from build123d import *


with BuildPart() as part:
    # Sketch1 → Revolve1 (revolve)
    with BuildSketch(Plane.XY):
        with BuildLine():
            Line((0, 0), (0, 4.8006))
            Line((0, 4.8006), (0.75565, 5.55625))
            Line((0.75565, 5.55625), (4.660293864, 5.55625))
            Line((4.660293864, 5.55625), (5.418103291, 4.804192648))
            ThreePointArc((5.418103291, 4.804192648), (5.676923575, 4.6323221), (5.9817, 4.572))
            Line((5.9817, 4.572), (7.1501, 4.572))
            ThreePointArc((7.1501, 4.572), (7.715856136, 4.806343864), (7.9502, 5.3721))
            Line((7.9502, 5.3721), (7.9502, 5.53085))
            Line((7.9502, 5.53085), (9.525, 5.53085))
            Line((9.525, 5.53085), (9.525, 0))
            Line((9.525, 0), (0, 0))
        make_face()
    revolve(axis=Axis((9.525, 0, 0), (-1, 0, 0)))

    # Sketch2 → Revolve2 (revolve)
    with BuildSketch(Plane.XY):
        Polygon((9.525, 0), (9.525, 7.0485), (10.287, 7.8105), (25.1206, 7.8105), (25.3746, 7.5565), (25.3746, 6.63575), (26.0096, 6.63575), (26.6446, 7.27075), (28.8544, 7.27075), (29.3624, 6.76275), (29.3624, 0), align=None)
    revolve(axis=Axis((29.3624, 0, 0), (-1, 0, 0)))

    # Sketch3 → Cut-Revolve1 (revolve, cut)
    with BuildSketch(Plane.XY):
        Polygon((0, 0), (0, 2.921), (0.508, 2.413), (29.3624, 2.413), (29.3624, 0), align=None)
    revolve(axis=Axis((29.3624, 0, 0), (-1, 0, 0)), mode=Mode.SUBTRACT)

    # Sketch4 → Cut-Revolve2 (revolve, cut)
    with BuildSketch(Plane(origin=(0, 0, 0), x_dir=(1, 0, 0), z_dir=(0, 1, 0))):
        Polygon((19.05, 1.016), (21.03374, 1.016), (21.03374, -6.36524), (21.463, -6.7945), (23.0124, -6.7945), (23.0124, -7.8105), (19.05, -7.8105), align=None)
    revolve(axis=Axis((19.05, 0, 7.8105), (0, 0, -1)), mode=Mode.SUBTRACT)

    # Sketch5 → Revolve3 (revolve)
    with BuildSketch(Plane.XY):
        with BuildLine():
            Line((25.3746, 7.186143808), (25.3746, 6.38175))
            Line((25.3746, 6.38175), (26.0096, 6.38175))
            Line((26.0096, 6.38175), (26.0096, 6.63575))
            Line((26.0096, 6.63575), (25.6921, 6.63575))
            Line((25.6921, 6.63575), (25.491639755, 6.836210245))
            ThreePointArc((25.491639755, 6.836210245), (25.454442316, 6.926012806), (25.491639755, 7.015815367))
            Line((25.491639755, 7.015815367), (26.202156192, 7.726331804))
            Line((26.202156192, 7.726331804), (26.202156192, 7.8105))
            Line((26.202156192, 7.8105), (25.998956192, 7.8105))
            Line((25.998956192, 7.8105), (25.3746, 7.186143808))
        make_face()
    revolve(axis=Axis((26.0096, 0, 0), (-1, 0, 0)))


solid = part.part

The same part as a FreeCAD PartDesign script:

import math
import FreeCAD as App
import Part
import Sketcher
Q = App.Units.Quantity

doc = App.newDocument("Part")
body = doc.addObject("PartDesign::Body", "Body")

# Sketch on XY plane
sketch1 = doc.addObject("Sketcher::SketchObject", "Sketch")
body.addObject(sketch1)
sketch1.AttachmentSupport = (doc.XY_Plane, [""])
sketch1.MapMode = "FlatFace"
sketch1.addGeometry([
    Part.LineSegment(App.Vector(0, 4.8, 0), App.Vector(0, 0, 0)),  # 0
    Part.LineSegment(App.Vector(0, 0, 0), App.Vector(9.53, 0, 0)),  # 1
    Part.LineSegment(App.Vector(9.53, 0, 0), App.Vector(9.53, 5.53, 0)),  # 2
    Part.LineSegment(App.Vector(9.53, 5.53, 0), App.Vector(7.95, 5.53, 0)),  # 3
    Part.LineSegment(App.Vector(7.95, 5.53, 0), App.Vector(7.95, 5.37, 0)),  # 4
    Part.ArcOfCircle(Part.Circle(App.Vector(7.15, 5.37, 0), App.Vector(0, 0, 1), 0.8), math.radians(-90), math.radians(0)),  # 5
    Part.LineSegment(App.Vector(7.15, 4.57, 0), App.Vector(5.98, 4.57, 0)),  # 6
    Part.ArcOfCircle(Part.Circle(App.Vector(5.98, 5.37, 0), App.Vector(0, 0, 1), 0.8), math.radians(-135), math.radians(-90)),  # 7
    Part.LineSegment(App.Vector(5.42, 4.8, 0), App.Vector(4.66, 5.56, 0)),  # 8
    Part.LineSegment(App.Vector(4.66, 5.56, 0), App.Vector(0.76, 5.56, 0)),  # 9
    Part.LineSegment(App.Vector(0.76, 5.56, 0), App.Vector(0, 4.8, 0)),  # 10
], False)
sketch1.addConstraint([
    Sketcher.Constraint("Coincident", 0, 2, 1, 1),
    Sketcher.Constraint("Coincident", 1, 2, 2, 1),
    Sketcher.Constraint("Coincident", 2, 2, 3, 1),
    Sketcher.Constraint("Coincident", 3, 2, 4, 1),
    Sketcher.Constraint("Tangent", 4, 2, 5, 2),
    Sketcher.Constraint("Tangent", 5, 1, 6, 1),
    Sketcher.Constraint("Tangent", 6, 2, 7, 2),
    Sketcher.Constraint("Tangent", 7, 1, 8, 1),
    Sketcher.Constraint("Coincident", 8, 2, 9, 1),
    Sketcher.Constraint("Coincident", 9, 2, 10, 1),
    Sketcher.Constraint("Coincident", 10, 2, 0, 1),
    Sketcher.Constraint("Vertical", 0),
    Sketcher.Constraint("Horizontal", 1),
    Sketcher.Constraint("Vertical", 2),
    Sketcher.Constraint("Horizontal", 3),
    Sketcher.Constraint("Vertical", 4),
    Sketcher.Constraint("Horizontal", 6),
    Sketcher.Constraint("Horizontal", 9),
    Sketcher.Constraint("Coincident", 0, 2, -1, 1),
    Sketcher.Constraint("Equal", 5, 7),
    Sketcher.Constraint("Angle", 10, Q("-135 deg")),
    Sketcher.Constraint("Radius", 5, Q("0.0315 in")),
    Sketcher.Constraint("DistanceX", 1, 1, 1, 2, Q("0.375 in")),
    Sketcher.Constraint("DistanceX", 3, 2, 3, 1, Q("0.062 in")),
    Sketcher.Constraint("DistanceX", 6, 2, 6, 1, Q("0.046 in")),
    Sketcher.Constraint("DistanceY", 0, 2, 0, 1, Q("0.189 in")),
    Sketcher.Constraint("DistanceY", -1, 1, 5, 1, Q("0.18 in")),
    Sketcher.Constraint("DistanceY", -1, 1, 8, 2, Q("0.21875 in")),
    Sketcher.Constraint("DistanceY", 2, 1, 2, 2, Q("5.53085 mm")),
    Sketcher.Constraint("DistanceX", 9, 2, 9, 1, Q("3.904644 mm")),
])
revolution = doc.addObject("PartDesign::Revolution", "Revolution")
body.addObject(revolution)
revolution.Profile = sketch1
revolution.ReferenceAxis = (sketch1, ["H_Axis"])
revolution.Angle = 360

# Sketch on XY plane
sketch2 = doc.addObject("Sketcher::SketchObject", "Sketch001")
body.addObject(sketch2)
sketch2.AttachmentSupport = (doc.XY_Plane, [""])
sketch2.MapMode = "FlatFace"
sketch2.addGeometry([
    Part.LineSegment(App.Vector(9.53, 7.05, 0), App.Vector(9.53, 0, 0)),  # 0
    Part.LineSegment(App.Vector(9.53, 0, 0), App.Vector(29.36, 0, 0)),  # 1
    Part.LineSegment(App.Vector(29.36, 0, 0), App.Vector(29.36, 6.76, 0)),  # 2
    Part.LineSegment(App.Vector(29.36, 6.76, 0), App.Vector(28.85, 7.27, 0)),  # 3
    Part.LineSegment(App.Vector(28.85, 7.27, 0), App.Vector(26.64, 7.27, 0)),  # 4
    Part.LineSegment(App.Vector(26.64, 7.27, 0), App.Vector(26.01, 6.64, 0)),  # 5
    Part.LineSegment(App.Vector(26.01, 6.64, 0), App.Vector(25.37, 6.64, 0)),  # 6
    Part.LineSegment(App.Vector(25.37, 6.64, 0), App.Vector(25.37, 7.56, 0)),  # 7
    Part.LineSegment(App.Vector(25.37, 7.56, 0), App.Vector(25.12, 7.81, 0)),  # 8
    Part.LineSegment(App.Vector(25.12, 7.81, 0), App.Vector(10.29, 7.81, 0)),  # 9
    Part.LineSegment(App.Vector(10.29, 7.81, 0), App.Vector(9.53, 7.05, 0)),  # 10
], False)
sketch2.addConstraint([
    Sketcher.Constraint("Coincident", 0, 2, 1, 1),
    Sketcher.Constraint("Coincident", 1, 2, 2, 1),
    Sketcher.Constraint("Coincident", 2, 2, 3, 1),
    Sketcher.Constraint("Coincident", 3, 2, 4, 1),
    Sketcher.Constraint("Coincident", 4, 2, 5, 1),
    Sketcher.Constraint("Coincident", 5, 2, 6, 1),
    Sketcher.Constraint("Coincident", 6, 2, 7, 1),
    Sketcher.Constraint("Coincident", 7, 2, 8, 1),
    Sketcher.Constraint("Coincident", 8, 2, 9, 1),
    Sketcher.Constraint("Coincident", 9, 2, 10, 1),
    Sketcher.Constraint("Coincident", 10, 2, 0, 1),
    Sketcher.Constraint("Vertical", 0),
    Sketcher.Constraint("Horizontal", 1),
    Sketcher.Constraint("Vertical", 2),
    Sketcher.Constraint("Horizontal", 4),
    Sketcher.Constraint("Horizontal", 6),
    Sketcher.Constraint("Vertical", 7),
    Sketcher.Constraint("Horizontal", 9),
    Sketcher.Constraint("PointOnObject", 0, 2, -1),
    Sketcher.Constraint("Perpendicular", 3, 5),
    Sketcher.Constraint("Perpendicular", 5, 8),
    Sketcher.Constraint("Perpendicular", 8, 10),
    Sketcher.Constraint("Angle", 3, Q("135 deg")),
    Sketcher.Constraint("DistanceX", 1, 1, 1, 2, Q("0.781 in")),
    Sketcher.Constraint("DistanceX", 4, 2, 4, 1, Q("0.087 in")),
    Sketcher.Constraint("DistanceX", 6, 2, 6, 1, Q("0.025 in")),
    Sketcher.Constraint("DistanceX", 9, 2, 9, 1, Q("0.584 in")),
    Sketcher.Constraint("DistanceX", 3, 2, 2, 2, Q("0.02 in")),
    Sketcher.Constraint("DistanceX", 6, 2, 4, 2, Q("0.05 in")),
    Sketcher.Constraint("DistanceX", 8, 2, 7, 2, Q("0.01 in")),
    Sketcher.Constraint("DistanceY", 0, 2, 0, 1, Q("0.2775 in")),
    Sketcher.Constraint("DistanceX", -1, 1, 0, 2, Q("0.375 in")),
    Sketcher.Constraint("DistanceY", 2, 2, 7, 2, Q("0.03125 in")),
])
revolution2 = doc.addObject("PartDesign::Revolution", "Revolution001")
body.addObject(revolution2)
revolution2.Profile = sketch2
revolution2.ReferenceAxis = (sketch2, ["H_Axis"])
revolution2.Angle = 360

# Sketch on XY plane
sketch3 = doc.addObject("Sketcher::SketchObject", "Sketch002")
body.addObject(sketch3)
sketch3.AttachmentSupport = (doc.XY_Plane, [""])
sketch3.MapMode = "FlatFace"
sketch3.addGeometry([
    Part.LineSegment(App.Vector(0, 2.9, 0), App.Vector(0, 0, 0)),  # 0
    Part.LineSegment(App.Vector(0, 0, 0), App.Vector(29.4, 0, 0)),  # 1
    Part.LineSegment(App.Vector(29.4, 0, 0), App.Vector(29.4, 2.4, 0)),  # 2
    Part.LineSegment(App.Vector(29.4, 2.4, 0), App.Vector(0.5, 2.4, 0)),  # 3
    Part.LineSegment(App.Vector(0.5, 2.4, 0), App.Vector(0, 2.9, 0)),  # 4
], False)
sketch3.addConstraint([
    Sketcher.Constraint("Coincident", 0, 2, 1, 1),
    Sketcher.Constraint("Coincident", 1, 2, 2, 1),
    Sketcher.Constraint("Coincident", 2, 2, 3, 1),
    Sketcher.Constraint("Coincident", 3, 2, 4, 1),
    Sketcher.Constraint("Coincident", 4, 2, 0, 1),
    Sketcher.Constraint("Vertical", 0),
    Sketcher.Constraint("Horizontal", 1),
    Sketcher.Constraint("Vertical", 2),
    Sketcher.Constraint("Horizontal", 3),
    Sketcher.Constraint("Coincident", 0, 2, -1, 1),
    Sketcher.Constraint("Angle", 4, Q("135 deg")),
    Sketcher.Constraint("DistanceX", 1, 1, 1, 2, Q("1.156 in")),
    Sketcher.Constraint("DistanceX", 3, 2, 3, 1, Q("1.136 in")),
    Sketcher.Constraint("DistanceY", 0, 2, 0, 1, Q("0.115 in")),
])
groove = doc.addObject("PartDesign::Groove", "Groove")
body.addObject(groove)
groove.Profile = sketch3
groove.ReferenceAxis = (sketch3, ["H_Axis"])
groove.Angle = 360

# Sketch on XZ plane
sketch4 = doc.addObject("Sketcher::SketchObject", "Sketch003")
body.addObject(sketch4)
sketch4.AttachmentSupport = (doc.XZ_Plane, [""])
sketch4.MapMode = "FlatFace"
sketch4.addGeometry([
    Part.LineSegment(App.Vector(21, -1, 0), App.Vector(19.1, -1, 0)),  # 0
    Part.LineSegment(App.Vector(19.1, -1, 0), App.Vector(19.1, 7.8, 0)),  # 1
    Part.LineSegment(App.Vector(19.1, 7.8, 0), App.Vector(23, 7.8, 0)),  # 2
    Part.LineSegment(App.Vector(23, 7.8, 0), App.Vector(23, 6.8, 0)),  # 3
    Part.LineSegment(App.Vector(23, 6.8, 0), App.Vector(21.5, 6.8, 0)),  # 4
    Part.LineSegment(App.Vector(21.5, 6.8, 0), App.Vector(21, 6.4, 0)),  # 5
    Part.LineSegment(App.Vector(21, 6.4, 0), App.Vector(21, -1, 0)),  # 6
], False)
sketch4.addGeometry(Part.LineSegment(App.Vector(19.1, 7.8, 0), App.Vector(19.1, -1, 0)), True)  # axis
sketch4.addConstraint([
    Sketcher.Constraint("Coincident", 0, 2, 1, 1),
    Sketcher.Constraint("Coincident", 1, 2, 2, 1),
    Sketcher.Constraint("Coincident", 2, 2, 3, 1),
    Sketcher.Constraint("Coincident", 3, 2, 4, 1),
    Sketcher.Constraint("Coincident", 4, 2, 5, 1),
    Sketcher.Constraint("Coincident", 5, 2, 6, 1),
    Sketcher.Constraint("Coincident", 6, 2, 0, 1),
    Sketcher.Constraint("Horizontal", 0),
    Sketcher.Constraint("Vertical", 1),
    Sketcher.Constraint("Horizontal", 2),
    Sketcher.Constraint("Vertical", 3),
    Sketcher.Constraint("Horizontal", 4),
    Sketcher.Constraint("Vertical", 6),
    Sketcher.Constraint("Vertical", 7),
    Sketcher.Constraint("Coincident", 7, 1, 1, 2),
    Sketcher.Constraint("Horizontal", 6, 2, 7, 2),
    Sketcher.Constraint("Angle", 5, Q("-135 deg")),
    Sketcher.Constraint("DistanceY", 3, 2, 3, 1, Q("0.04 in")),
    Sketcher.Constraint("DistanceX", 2, 1, 2, 2, Q("0.156 in")),
    Sketcher.Constraint("DistanceX", 4, 2, 4, 1, Q("0.061 in")),
    Sketcher.Constraint("DistanceX", -1, 1, 0, 2, Q("0.75 in")),
    Sketcher.Constraint("DistanceY", 0, 2, -1, 1, Q("0.04 in")),
    Sketcher.Constraint("DistanceX", 0, 2, 0, 1, Q("0.0781 in")),
    Sketcher.Constraint("DistanceY", 1, 1, 1, 2, Q("0.3475 in")),
])
groove2 = doc.addObject("PartDesign::Groove", "Groove001")
body.addObject(groove2)
groove2.Profile = sketch4
groove2.ReferenceAxis = (sketch4, ["Axis0"])
groove2.Angle = 360

# Sketch on XY plane
sketch5 = doc.addObject("Sketcher::SketchObject", "Sketch004")
body.addObject(sketch5)
sketch5.AttachmentSupport = (doc.XY_Plane, [""])
sketch5.MapMode = "FlatFace"
sketch5.addGeometry([
    Part.LineSegment(App.Vector(25.37, 7.19, 0), App.Vector(25.37, 6.38, 0)),  # 0
    Part.LineSegment(App.Vector(25.37, 6.38, 0), App.Vector(26.01, 6.38, 0)),  # 1
    Part.LineSegment(App.Vector(26.01, 6.38, 0), App.Vector(26.01, 6.64, 0)),  # 2
    Part.LineSegment(App.Vector(26.01, 6.64, 0), App.Vector(25.69, 6.64, 0)),  # 3
    Part.LineSegment(App.Vector(25.69, 6.64, 0), App.Vector(25.49, 6.84, 0)),  # 4
    Part.ArcOfCircle(Part.Circle(App.Vector(25.58, 6.93, 0), App.Vector(0, 0, 1), 0.13), math.radians(135), math.radians(225)),  # 5
    Part.LineSegment(App.Vector(25.49, 7.02, 0), App.Vector(26.2, 7.73, 0)),  # 6
    Part.LineSegment(App.Vector(26.2, 7.73, 0), App.Vector(26.2, 7.81, 0)),  # 7
    Part.LineSegment(App.Vector(26.2, 7.81, 0), App.Vector(26, 7.81, 0)),  # 8
    Part.LineSegment(App.Vector(26, 7.81, 0), App.Vector(25.37, 7.19, 0)),  # 9
], False)
sketch5.addConstraint([
    Sketcher.Constraint("Coincident", 0, 2, 1, 1),
    Sketcher.Constraint("Coincident", 1, 2, 2, 1),
    Sketcher.Constraint("Coincident", 2, 2, 3, 1),
    Sketcher.Constraint("Coincident", 3, 2, 4, 1),
    Sketcher.Constraint("Tangent", 4, 2, 5, 2),
    Sketcher.Constraint("Tangent", 5, 1, 6, 1),
    Sketcher.Constraint("Coincident", 6, 2, 7, 1),
    Sketcher.Constraint("Coincident", 7, 2, 8, 1),
    Sketcher.Constraint("Coincident", 8, 2, 9, 1),
    Sketcher.Constraint("Coincident", 9, 2, 0, 1),
    Sketcher.Constraint("Vertical", 0),
    Sketcher.Constraint("Horizontal", 1),
    Sketcher.Constraint("Vertical", 2),
    Sketcher.Constraint("Horizontal", 3),
    Sketcher.Constraint("Vertical", 7),
    Sketcher.Constraint("Horizontal", 8),
    Sketcher.Constraint("Perpendicular", 4, 6),
    Sketcher.Constraint("Parallel", 6, 9),
    Sketcher.Constraint("Vertical", 4, 2, 5, 1),
    Sketcher.Constraint("Radius", 5, Q("0.005 in")),
    Sketcher.Constraint("DistanceY", 2, 1, 2, 2, Q("0.01 in")),
    Sketcher.Constraint("DistanceX", 1, 1, 1, 2, Q("0.025 in")),
    Sketcher.Constraint("DistanceX", 8, 2, 8, 1, Q("0.008 in")),
    Sketcher.Constraint("DistanceX", 3, 2, 3, 1, Q("0.0125 in")),
    Sketcher.Constraint("DistanceX", -1, 1, 0, 2, Q("0.999 in")),
    Sketcher.Constraint("DistanceY", -1, 1, 7, 2, Q("0.3075 in")),
    Sketcher.Constraint("DistanceY", 7, 1, 7, 2, Q("0.084168 mm")),
    Sketcher.Constraint("Distance", 6, Q("1.004822 mm")),
    Sketcher.Constraint("DistanceY", 0, 2, 0, 1, Q("0.804394 mm")),
])
revolution3 = doc.addObject("PartDesign::Revolution", "Revolution002")
body.addObject(revolution3)
revolution3.Profile = sketch5
revolution3.ReferenceAxis = (sketch5, ["H_Axis"])
revolution3.Angle = 360

doc.recompute()
